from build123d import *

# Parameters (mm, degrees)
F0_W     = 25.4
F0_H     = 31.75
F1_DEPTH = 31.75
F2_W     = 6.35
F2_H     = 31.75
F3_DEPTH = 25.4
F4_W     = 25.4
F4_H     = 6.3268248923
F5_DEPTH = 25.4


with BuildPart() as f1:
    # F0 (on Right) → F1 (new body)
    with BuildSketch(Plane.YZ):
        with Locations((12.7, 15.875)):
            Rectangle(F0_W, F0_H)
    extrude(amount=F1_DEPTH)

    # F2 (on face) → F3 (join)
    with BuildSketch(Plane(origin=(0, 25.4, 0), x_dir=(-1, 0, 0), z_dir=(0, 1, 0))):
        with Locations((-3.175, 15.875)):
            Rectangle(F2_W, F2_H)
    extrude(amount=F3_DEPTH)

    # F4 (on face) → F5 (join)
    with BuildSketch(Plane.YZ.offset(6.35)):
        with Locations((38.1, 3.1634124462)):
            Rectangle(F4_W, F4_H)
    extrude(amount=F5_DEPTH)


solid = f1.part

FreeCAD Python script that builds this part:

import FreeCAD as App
import Part
import Sketcher
Q = App.Units.Quantity

doc = App.newDocument("Part")
body = doc.addObject("PartDesign::Body", "Body")

sketch1 = body.newObject("Sketcher::SketchObject", "Sketch")
sketch1.AttachmentSupport = (doc.getObject("YZ_Plane"), [""])
sketch1.MapMode = "FlatFace"
sketch1.addGeometry([
    Part.LineSegment(App.Vector(0, 32, 0), App.Vector(0, 0, 0)),
    Part.LineSegment(App.Vector(0, 0, 0), App.Vector(25, 0, 0)),
    Part.LineSegment(App.Vector(25, 0, 0), App.Vector(25, 32, 0)),
    Part.LineSegment(App.Vector(25, 32, 0), App.Vector(0, 32, 0)),
], False)
sketch1.addConstraint([
    Sketcher.Constraint("Coincident", 0, 2, 1, 1),
    Sketcher.Constraint("Coincident", 1, 2, 2, 1),
    Sketcher.Constraint("Coincident", 2, 2, 3, 1),
    Sketcher.Constraint("Coincident", 3, 2, 0, 1),
    Sketcher.Constraint("Vertical", 0),
    Sketcher.Constraint("Horizontal", 1),
    Sketcher.Constraint("Vertical", 2),
    Sketcher.Constraint("Horizontal", 3),
    Sketcher.Constraint("Coincident", 0, 2, -1, 1),
    Sketcher.Constraint("DistanceX", 1, 1, 1, 2, Q("1 in")),
    Sketcher.Constraint("DistanceY", 0, 2, 0, 1, Q("1.25 in")),
])
pad1 = body.newObject("PartDesign::Pad", "Pad")
pad1.Profile = sketch1
pad1.Length = Q("1.25 in")

sketch2 = body.newObject("Sketcher::SketchObject", "Sketch001")
sketch2.AttachmentSupport = (doc.getObject("XZ_Plane"), [""])
sketch2.MapMode = "FlatFace"
sketch2.AttachmentOffset = App.Placement(App.Vector(0, 0, -1 * 25.4), App.Rotation())
sketch2.addGeometry([
    Part.LineSegment(App.Vector(6, 32, 0), App.Vector(6, 0, 0)),
    Part.LineSegment(App.Vector(6, 0, 0), App.Vector(0, 0, 0)),
    Part.LineSegment(App.Vector(0, 0, 0), App.Vector(0, 32, 0)),
    Part.LineSegment(App.Vector(0, 32, 0), App.Vector(6, 32, 0)),
], False)
sketch2.addConstraint([
    Sketcher.Constraint("Coincident", 0, 2, 1, 1),
    Sketcher.Constraint("Coincident", 1, 2, 2, 1),
    Sketcher.Constraint("Coincident", 2, 2, 3, 1),
    Sketcher.Constraint("Coincident", 3, 2, 0, 1),
    Sketcher.Constraint("Vertical", 0),
    Sketcher.Constraint("Horizontal", 1),
    Sketcher.Constraint("Vertical", 2),
    Sketcher.Constraint("Horizontal", 3),
    Sketcher.Constraint("Coincident", 1, 2, -1, 1),
    Sketcher.Constraint("DistanceX", 1, 2, 1, 1, Q("0.25 in")),
    Sketcher.Constraint("DistanceY", 0, 2, 0, 1, Q("1.25 in")),
])
pad2 = body.newObject("PartDesign::Pad", "Pad001")
pad2.Profile = sketch2
pad2.Length = Q("1 in")
pad2.Reversed = True

sketch3 = body.newObject("Sketcher::SketchObject", "Sketch002")
sketch3.AttachmentSupport = (doc.getObject("YZ_Plane"), [""])
sketch3.MapMode = "FlatFace"
sketch3.AttachmentOffset = App.Placement(App.Vector(0, 0, 0.25 * 25.4), App.Rotation())
sketch3.addGeometry([
    Part.LineSegment(App.Vector(25, 6, 0), App.Vector(25, 0, 0)),
    Part.LineSegment(App.Vector(25, 0, 0), App.Vector(51, 0, 0)),
    Part.LineSegment(App.Vector(51, 0, 0), App.Vector(51, 6, 0)),
    Part.LineSegment(App.Vector(51, 6, 0), App.Vector(25, 6, 0)),
], False)
sketch3.addConstraint([
    Sketcher.Constraint("Coincident", 0, 2, 1, 1),
    Sketcher.Constraint("Coincident", 1, 2, 2, 1),
    Sketcher.Constraint("Coincident", 2, 2, 3, 1),
    Sketcher.Constraint("Coincident", 3, 2, 0, 1),
    Sketcher.Constraint("Vertical", 0),
    Sketcher.Constraint("Horizontal", 1),
    Sketcher.Constraint("Vertical", 2),
    Sketcher.Constraint("Horizontal", 3),
    Sketcher.Constraint("PointOnObject", 0, 2, -1),
    Sketcher.Constraint("DistanceX", 1, 1, 1, 2, Q("1 in")),
    Sketcher.Constraint("DistanceX", -1, 1, 0, 2, Q("1 in")),
    Sketcher.Constraint("DistanceY", 0, 2, 0, 1, 6.326825),
])
pad3 = body.newObject("PartDesign::Pad", "Pad002")
pad3.Profile = sketch3
pad3.Length = Q("1 in")

doc.recompute()
